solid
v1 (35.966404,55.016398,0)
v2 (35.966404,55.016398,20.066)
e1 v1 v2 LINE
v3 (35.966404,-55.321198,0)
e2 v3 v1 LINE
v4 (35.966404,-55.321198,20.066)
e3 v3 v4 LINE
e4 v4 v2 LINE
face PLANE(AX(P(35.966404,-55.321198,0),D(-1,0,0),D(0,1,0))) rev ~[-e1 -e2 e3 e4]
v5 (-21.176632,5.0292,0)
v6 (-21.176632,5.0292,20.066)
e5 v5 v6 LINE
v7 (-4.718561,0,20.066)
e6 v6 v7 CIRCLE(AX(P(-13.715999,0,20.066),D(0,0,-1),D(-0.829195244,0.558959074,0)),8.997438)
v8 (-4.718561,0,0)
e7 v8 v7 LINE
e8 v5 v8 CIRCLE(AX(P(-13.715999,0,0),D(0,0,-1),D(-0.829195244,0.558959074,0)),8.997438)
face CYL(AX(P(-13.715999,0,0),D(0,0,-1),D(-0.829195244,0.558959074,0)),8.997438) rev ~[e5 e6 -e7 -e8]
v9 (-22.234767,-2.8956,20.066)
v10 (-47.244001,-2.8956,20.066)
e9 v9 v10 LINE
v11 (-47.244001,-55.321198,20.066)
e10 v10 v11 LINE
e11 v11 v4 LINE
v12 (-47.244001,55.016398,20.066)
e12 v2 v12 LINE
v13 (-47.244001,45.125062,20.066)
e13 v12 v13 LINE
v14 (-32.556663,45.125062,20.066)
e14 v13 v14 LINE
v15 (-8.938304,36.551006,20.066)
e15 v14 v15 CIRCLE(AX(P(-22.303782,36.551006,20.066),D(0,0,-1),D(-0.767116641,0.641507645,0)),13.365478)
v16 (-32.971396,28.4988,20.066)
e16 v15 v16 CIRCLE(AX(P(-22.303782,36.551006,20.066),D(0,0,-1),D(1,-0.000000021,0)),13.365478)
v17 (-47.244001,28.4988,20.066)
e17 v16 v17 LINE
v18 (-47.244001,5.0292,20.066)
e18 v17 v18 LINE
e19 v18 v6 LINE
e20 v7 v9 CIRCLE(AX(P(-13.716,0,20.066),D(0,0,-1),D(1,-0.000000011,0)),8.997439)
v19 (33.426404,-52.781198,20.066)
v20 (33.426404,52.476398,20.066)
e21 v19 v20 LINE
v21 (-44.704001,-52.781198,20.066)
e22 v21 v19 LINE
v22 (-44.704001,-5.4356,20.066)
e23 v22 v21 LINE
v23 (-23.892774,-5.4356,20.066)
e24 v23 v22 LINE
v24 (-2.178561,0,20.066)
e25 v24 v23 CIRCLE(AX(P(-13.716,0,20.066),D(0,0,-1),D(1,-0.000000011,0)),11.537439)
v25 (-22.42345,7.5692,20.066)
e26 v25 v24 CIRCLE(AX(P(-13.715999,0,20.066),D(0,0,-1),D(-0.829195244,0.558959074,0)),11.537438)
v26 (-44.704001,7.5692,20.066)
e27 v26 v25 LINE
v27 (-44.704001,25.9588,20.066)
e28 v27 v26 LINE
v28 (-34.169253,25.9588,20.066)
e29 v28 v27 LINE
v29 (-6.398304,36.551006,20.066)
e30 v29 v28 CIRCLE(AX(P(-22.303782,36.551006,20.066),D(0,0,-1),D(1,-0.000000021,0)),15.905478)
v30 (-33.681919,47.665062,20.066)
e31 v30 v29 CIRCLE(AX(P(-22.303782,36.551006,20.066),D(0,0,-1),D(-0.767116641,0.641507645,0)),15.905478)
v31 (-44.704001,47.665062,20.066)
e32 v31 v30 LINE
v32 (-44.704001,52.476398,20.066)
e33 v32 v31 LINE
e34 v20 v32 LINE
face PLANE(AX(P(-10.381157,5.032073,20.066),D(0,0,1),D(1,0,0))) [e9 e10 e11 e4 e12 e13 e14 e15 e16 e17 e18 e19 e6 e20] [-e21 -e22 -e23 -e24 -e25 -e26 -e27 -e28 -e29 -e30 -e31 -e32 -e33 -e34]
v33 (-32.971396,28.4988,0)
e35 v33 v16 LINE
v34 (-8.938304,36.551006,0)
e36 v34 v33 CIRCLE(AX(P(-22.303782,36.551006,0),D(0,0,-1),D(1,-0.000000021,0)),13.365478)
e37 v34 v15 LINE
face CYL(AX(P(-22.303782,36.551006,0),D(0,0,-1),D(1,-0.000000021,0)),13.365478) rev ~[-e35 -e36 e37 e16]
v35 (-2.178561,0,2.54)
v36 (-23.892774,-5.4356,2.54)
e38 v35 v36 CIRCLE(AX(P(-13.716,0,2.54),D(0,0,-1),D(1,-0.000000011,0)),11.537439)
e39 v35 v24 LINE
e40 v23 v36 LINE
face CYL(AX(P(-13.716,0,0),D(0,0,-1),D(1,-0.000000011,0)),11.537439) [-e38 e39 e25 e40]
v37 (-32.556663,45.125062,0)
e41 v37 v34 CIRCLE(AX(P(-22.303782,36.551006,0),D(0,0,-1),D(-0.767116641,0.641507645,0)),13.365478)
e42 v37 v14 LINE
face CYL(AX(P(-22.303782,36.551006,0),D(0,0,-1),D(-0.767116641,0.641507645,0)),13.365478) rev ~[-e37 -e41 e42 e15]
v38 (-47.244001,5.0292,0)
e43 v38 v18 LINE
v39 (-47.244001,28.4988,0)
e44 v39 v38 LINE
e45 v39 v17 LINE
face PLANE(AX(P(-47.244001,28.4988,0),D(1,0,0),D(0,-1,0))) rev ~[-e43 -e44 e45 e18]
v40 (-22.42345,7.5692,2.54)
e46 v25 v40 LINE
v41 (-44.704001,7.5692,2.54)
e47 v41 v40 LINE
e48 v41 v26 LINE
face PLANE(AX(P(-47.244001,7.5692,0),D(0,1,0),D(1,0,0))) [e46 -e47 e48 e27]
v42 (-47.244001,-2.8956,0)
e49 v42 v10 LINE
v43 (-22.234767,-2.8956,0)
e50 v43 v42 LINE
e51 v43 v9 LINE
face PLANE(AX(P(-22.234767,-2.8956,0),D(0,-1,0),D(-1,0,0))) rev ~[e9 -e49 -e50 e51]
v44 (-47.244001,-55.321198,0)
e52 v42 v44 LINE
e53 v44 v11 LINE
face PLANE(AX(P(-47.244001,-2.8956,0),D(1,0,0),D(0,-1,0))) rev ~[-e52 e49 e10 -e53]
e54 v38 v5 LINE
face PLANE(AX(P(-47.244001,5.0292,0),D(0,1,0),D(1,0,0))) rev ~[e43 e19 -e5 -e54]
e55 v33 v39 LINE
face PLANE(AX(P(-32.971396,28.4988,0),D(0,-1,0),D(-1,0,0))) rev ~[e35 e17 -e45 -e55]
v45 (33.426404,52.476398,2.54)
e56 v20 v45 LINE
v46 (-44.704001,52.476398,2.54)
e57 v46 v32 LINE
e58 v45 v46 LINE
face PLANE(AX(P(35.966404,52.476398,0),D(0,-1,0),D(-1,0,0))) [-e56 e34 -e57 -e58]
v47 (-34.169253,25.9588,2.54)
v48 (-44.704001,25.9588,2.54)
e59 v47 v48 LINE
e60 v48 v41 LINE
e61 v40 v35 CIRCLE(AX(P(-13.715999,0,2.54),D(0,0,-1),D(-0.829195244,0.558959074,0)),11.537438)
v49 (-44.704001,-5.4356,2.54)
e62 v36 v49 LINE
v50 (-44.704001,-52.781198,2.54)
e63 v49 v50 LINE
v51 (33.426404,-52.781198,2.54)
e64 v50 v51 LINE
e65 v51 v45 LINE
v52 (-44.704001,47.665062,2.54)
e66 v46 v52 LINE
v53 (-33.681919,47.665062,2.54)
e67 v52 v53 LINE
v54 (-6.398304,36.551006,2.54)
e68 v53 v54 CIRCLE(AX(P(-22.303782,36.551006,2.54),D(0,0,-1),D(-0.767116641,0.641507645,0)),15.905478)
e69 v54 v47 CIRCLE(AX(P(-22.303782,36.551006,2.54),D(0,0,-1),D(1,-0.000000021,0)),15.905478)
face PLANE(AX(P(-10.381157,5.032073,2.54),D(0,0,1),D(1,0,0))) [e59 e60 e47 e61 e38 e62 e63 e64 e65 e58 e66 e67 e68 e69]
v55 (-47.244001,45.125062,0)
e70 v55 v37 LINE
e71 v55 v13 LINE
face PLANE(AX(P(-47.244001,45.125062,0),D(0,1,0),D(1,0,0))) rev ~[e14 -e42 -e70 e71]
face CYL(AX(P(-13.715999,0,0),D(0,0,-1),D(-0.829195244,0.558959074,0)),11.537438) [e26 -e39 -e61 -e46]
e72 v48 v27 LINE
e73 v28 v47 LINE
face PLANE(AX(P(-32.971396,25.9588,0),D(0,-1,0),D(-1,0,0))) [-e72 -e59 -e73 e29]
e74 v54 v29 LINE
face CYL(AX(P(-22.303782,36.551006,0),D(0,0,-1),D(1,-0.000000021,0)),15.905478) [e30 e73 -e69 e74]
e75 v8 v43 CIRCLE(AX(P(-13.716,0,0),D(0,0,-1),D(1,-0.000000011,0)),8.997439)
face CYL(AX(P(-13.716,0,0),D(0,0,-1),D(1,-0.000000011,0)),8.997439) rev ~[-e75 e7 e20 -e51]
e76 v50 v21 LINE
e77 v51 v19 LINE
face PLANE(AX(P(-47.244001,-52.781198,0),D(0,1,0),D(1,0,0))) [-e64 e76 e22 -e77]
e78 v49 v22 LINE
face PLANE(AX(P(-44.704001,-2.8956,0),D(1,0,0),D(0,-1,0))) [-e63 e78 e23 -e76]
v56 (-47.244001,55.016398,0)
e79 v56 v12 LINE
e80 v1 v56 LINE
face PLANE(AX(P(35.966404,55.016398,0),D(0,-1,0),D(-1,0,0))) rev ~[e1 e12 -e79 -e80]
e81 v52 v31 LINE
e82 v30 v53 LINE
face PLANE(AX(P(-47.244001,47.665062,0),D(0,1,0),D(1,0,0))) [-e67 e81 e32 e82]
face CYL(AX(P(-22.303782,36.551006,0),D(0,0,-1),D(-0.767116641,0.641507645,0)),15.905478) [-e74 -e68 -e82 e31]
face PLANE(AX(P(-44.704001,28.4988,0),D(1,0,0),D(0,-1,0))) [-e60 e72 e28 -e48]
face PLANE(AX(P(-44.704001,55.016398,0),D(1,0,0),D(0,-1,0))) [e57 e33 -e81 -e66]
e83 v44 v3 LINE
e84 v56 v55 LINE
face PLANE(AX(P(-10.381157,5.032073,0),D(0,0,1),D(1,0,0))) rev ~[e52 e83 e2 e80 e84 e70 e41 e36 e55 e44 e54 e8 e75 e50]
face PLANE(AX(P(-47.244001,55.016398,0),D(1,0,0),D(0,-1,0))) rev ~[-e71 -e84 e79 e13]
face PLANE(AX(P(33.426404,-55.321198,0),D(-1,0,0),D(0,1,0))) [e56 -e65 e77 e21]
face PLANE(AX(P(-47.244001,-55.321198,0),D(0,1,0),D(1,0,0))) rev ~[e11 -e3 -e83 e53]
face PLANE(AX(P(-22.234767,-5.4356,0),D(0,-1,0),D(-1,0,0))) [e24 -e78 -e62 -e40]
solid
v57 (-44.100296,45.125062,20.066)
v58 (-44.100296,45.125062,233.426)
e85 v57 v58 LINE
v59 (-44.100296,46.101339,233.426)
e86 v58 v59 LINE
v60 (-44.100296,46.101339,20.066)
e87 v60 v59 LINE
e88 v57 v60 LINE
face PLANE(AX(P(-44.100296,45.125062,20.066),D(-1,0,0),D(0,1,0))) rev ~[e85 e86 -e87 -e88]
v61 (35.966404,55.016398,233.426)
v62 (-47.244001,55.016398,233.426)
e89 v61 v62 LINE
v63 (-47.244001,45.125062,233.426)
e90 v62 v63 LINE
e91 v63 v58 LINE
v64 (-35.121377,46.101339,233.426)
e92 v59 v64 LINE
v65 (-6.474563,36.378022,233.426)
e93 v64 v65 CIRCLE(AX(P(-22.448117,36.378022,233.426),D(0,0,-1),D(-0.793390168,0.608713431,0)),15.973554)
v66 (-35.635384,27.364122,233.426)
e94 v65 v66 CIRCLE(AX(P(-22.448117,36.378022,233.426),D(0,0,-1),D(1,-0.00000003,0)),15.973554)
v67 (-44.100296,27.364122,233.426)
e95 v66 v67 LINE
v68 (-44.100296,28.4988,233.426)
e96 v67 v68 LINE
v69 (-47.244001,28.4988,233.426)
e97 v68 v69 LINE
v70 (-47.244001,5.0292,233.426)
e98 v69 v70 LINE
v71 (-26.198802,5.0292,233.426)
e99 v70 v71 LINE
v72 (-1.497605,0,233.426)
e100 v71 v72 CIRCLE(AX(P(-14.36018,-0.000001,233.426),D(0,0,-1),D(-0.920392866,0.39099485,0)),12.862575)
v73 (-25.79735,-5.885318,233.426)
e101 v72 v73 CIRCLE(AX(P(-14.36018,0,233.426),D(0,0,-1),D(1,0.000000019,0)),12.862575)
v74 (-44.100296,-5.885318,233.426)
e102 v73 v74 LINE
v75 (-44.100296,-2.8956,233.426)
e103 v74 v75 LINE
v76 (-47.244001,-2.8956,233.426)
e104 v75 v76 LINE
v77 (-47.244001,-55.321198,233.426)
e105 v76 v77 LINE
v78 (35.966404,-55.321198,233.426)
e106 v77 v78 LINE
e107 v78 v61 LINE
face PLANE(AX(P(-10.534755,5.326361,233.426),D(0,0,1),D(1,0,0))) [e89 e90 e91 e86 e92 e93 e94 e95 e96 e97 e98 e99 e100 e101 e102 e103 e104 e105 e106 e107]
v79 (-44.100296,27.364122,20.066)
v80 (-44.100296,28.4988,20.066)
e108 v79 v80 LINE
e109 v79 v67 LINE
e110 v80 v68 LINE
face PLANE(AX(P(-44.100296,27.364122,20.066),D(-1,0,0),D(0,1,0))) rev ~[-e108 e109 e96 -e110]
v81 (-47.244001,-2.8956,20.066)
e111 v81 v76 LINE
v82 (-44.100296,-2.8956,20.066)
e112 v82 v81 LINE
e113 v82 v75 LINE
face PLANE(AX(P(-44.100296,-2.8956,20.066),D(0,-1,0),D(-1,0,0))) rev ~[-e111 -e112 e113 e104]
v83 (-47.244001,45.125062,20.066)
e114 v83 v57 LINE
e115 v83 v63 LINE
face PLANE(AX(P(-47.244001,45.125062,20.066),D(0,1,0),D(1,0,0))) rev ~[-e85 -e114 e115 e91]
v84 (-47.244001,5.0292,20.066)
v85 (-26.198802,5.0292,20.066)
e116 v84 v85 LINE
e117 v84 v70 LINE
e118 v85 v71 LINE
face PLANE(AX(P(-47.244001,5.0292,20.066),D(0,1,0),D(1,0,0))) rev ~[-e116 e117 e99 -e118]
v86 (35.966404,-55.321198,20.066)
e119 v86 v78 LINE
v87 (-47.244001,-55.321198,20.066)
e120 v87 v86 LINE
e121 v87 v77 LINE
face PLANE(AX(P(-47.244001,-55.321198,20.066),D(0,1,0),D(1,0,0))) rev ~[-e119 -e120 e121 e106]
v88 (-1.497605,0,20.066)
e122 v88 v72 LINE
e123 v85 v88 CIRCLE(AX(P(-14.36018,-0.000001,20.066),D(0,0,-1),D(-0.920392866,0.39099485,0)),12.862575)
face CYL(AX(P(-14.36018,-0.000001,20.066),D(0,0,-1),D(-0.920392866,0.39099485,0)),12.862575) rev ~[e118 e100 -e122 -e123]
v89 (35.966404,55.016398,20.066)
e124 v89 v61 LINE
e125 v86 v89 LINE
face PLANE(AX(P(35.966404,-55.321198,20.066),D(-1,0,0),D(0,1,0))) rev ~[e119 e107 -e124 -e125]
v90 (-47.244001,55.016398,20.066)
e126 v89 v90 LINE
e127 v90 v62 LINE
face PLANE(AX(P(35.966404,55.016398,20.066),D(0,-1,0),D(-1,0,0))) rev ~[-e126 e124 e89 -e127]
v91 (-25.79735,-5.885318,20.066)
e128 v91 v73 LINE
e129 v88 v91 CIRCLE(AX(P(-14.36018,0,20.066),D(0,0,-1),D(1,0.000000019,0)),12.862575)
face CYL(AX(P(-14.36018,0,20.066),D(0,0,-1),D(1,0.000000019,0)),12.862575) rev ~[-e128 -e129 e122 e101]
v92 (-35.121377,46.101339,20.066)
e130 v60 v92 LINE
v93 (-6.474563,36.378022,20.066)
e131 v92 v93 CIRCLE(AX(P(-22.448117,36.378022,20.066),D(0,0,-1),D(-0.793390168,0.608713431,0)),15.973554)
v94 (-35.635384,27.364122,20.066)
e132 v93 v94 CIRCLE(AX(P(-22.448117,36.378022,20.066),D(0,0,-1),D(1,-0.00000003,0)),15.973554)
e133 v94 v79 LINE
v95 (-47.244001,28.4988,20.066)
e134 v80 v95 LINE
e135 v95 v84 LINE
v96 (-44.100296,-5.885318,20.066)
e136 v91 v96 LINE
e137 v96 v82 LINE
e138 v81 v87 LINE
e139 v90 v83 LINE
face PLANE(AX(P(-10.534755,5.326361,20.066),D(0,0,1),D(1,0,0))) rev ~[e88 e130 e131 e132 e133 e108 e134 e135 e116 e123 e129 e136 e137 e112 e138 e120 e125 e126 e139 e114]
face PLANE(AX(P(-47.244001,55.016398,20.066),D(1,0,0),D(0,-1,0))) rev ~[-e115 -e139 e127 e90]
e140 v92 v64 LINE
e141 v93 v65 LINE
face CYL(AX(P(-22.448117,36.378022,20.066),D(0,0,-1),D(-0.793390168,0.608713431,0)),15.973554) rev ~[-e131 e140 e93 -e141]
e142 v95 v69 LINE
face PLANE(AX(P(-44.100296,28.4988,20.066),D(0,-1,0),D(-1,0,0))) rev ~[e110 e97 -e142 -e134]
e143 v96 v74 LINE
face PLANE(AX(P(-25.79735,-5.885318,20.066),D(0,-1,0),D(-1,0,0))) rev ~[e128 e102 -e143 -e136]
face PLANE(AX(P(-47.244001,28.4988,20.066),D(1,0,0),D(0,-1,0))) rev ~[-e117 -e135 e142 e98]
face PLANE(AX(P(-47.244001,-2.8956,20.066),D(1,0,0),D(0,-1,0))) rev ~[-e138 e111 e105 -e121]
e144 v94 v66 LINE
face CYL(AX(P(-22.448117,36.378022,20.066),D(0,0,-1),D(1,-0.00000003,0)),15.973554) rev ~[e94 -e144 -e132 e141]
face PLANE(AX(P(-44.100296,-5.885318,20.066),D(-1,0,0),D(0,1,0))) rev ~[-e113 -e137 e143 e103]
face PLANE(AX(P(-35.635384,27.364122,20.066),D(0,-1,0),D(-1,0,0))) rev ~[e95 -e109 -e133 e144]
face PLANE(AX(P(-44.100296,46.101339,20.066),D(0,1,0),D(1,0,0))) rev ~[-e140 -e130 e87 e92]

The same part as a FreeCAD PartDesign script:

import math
import FreeCAD as App
import Part
import Sketcher
Q = App.Units.Quantity


def faces_at(feature, points):
    """Names of the faces that lie closest to the given points."""
    faces = feature.Shape.Faces
    near = lambda p: min(range(len(faces)), key=lambda i: faces[i].distToShape(Part.Vertex(*p))[0])
    return sorted({f"Face{near(p) + 1}" for p in points})

doc = App.newDocument("Part")
body = doc.addObject("PartDesign::Body", "Body")

sketch1 = body.newObject("Sketcher::SketchObject", "Sketch")
sketch1.AttachmentSupport = (doc.getObject("XY_Plane"), [""])
sketch1.MapMode = "FlatFace"
sketch1.addGeometry([
    Part.LineSegment(App.Vector(36, 55, 0), App.Vector(-47, 55, 0)),
    Part.LineSegment(App.Vector(-47, 55, 0), App.Vector(-47, 45, 0)),
    Part.LineSegment(App.Vector(-47, 45, 0), App.Vector(-33, 45, 0)),
    Part.ArcOfCircle(Part.Circle(App.Vector(-22, 37, 0), App.Vector(0, 0, 1), 13), math.radians(0), math.radians(140)),
    Part.ArcOfCircle(Part.Circle(App.Vector(-22, 37, 0), App.Vector(0, 0, 1), 13), math.radians(-143), math.radians(0)),
    Part.LineSegment(App.Vector(-33, 28, 0), App.Vector(-47, 28, 0)),
    Part.LineSegment(App.Vector(-47, 28, 0), App.Vector(-47, 5, 0)),
    Part.LineSegment(App.Vector(-47, 5, 0), App.Vector(-21, 5, 0)),
    Part.ArcOfCircle(Part.Circle(App.Vector(-14, 0, 0), App.Vector(0, 0, 1), 9), math.radians(0), math.radians(146)),
    Part.ArcOfCircle(Part.Circle(App.Vector(-14, 0, 0), App.Vector(0, 0, 1), 9), math.radians(-161), math.radians(0)),
    Part.LineSegment(App.Vector(-22, -3, 0), App.Vector(-47, -3, 0)),
    Part.LineSegment(App.Vector(-47, -3, 0), App.Vector(-47, -55, 0)),
    Part.LineSegment(App.Vector(-47, -55, 0), App.Vector(36, -55, 0)),
    Part.LineSegment(App.Vector(36, -55, 0), App.Vector(36, 55, 0)),
], False)
sketch1.addConstraint([
    Sketcher.Constraint("Coincident", 0, 2, 1, 1),
    Sketcher.Constraint("Coincident", 1, 2, 2, 1),
    Sketcher.Constraint("Coincident", 2, 2, 3, 2),
    Sketcher.Constraint("Tangent", 3, 1, 4, 2),
    Sketcher.Constraint("Coincident", 4, 1, 5, 1),
    Sketcher.Constraint("Coincident", 5, 2, 6, 1),
    Sketcher.Constraint("Coincident", 6, 2, 7, 1),
    Sketcher.Constraint("Coincident", 7, 2, 8, 2),
    Sketcher.Constraint("Tangent", 8, 1, 9, 2),
    Sketcher.Constraint("Coincident", 9, 1, 10, 1),
    Sketcher.Constraint("Coincident", 10, 2, 11, 1),
    Sketcher.Constraint("Coincident", 11, 2, 12, 1),
    Sketcher.Constraint("Coincident", 12, 2, 13, 1),
    Sketcher.Constraint("Coincident", 13, 2, 0, 1),
    Sketcher.Constraint("Horizontal", 0),
    Sketcher.Constraint("Vertical", 1),
    Sketcher.Constraint("Horizontal", 2),
    Sketcher.Constraint("Horizontal", 5),
    Sketcher.Constraint("Vertical", 6),
    Sketcher.Constraint("Horizontal", 7),
    Sketcher.Constraint("Horizontal", 10),
    Sketcher.Constraint("Vertical", 11),
    Sketcher.Constraint("Horizontal", 12),
    Sketcher.Constraint("Vertical", 13),
    Sketcher.Constraint("Equal", 3, 4),
    Sketcher.Constraint("Equal", 8, 9),
    Sketcher.Constraint("PointOnObject", 8, 3, -1),
    Sketcher.Constraint("PointOnObject", 8, 1, -1),
    Sketcher.Constraint("Horizontal", 4, 3, 3, 1),
    Sketcher.Constraint("Vertical", 1, 2, 5, 2),
    Sketcher.Constraint("Vertical", 6, 2, 10, 2),
    Sketcher.Constraint("Radius", 3, Q("0.5261999 in")),
    Sketcher.Constraint("DistanceX", 0, 2, 0, 1, Q("3.2760002 in")),
    Sketcher.Constraint("DistanceY", 6, 2, 6, 1, Q("0.924 in")),
    Sketcher.Constraint("DistanceY", 11, 2, 11, 1, Q("2.0639999 in")),
    Sketcher.Constraint("DistanceY", 13, 1, 13, 2, Q("4.3439998 in")),
    Sketcher.Constraint("DistanceX", 8, 3, -1, 1, Q("0.54 in")),
    Sketcher.Constraint("DistanceX", 0, 2, -1, 1, Q("1.86 in")),
    Sketcher.Constraint("DistanceY", -1, 1, 0, 2, Q("2.1659999 in")),
    Sketcher.Constraint("DistanceY", -1, 1, 4, 1, Q("1.122 in")),
    Sketcher.Constraint("Radius", 8, Q("8.997438 mm")),
    Sketcher.Constraint("DistanceX", 2, 1, 2, 2, Q("14.687338 mm")),
    Sketcher.Constraint("DistanceX", 5, 2, 5, 1, Q("14.272605 mm")),
    Sketcher.Constraint("DistanceY", 1, 2, 1, 1, Q("9.891336 mm")),
])
pad1 = body.newObject("PartDesign::Pad", "Pad")
pad1.Profile = sketch1
pad1.Length = Q("0.79 in")
doc.recompute()

thickness = body.newObject("PartDesign::Thickness", "Thickness")
thickness.Base = (pad1, faces_at(pad1, [(-22.281, -22.22, 20.066)]))
thickness.Value = Q("0.1 in")
thickness.Reversed = True
thickness.Join = "Arc"
body2 = doc.addObject("PartDesign::Body", "Body001")

sketch2 = body2.newObject("Sketcher::SketchObject", "Sketch001")
sketch2.AttachmentSupport = (doc.getObject("XY_Plane001"), [""])
sketch2.MapMode = "FlatFace"
sketch2.AttachmentOffset = App.Placement(App.Vector(0, 0, 0.79 * 25.4), App.Rotation())
sketch2.addGeometry([
    Part.ArcOfCircle(Part.Circle(App.Vector(-22.4, 36.4, 0), App.Vector(0, 0, 1), 16), math.radians(0), math.radians(143)),
    Part.ArcOfCircle(Part.Circle(App.Vector(-22.4, 36.4, 0), App.Vector(0, 0, 1), 16), math.radians(-146), math.radians(0)),
    Part.LineSegment(App.Vector(-35.6, 27.4, 0), App.Vector(-44.1, 27.4, 0)),
    Part.LineSegment(App.Vector(-44.1, 27.4, 0), App.Vector(-44.1, 28.5, 0)),
    Part.LineSegment(App.Vector(-44.1, 28.5, 0), App.Vector(-47.2, 28.5, 0)),
    Part.LineSegment(App.Vector(-47.2, 28.5, 0), App.Vector(-47.2, 5, 0)),
    Part.LineSegment(App.Vector(-47.2, 5, 0), App.Vector(-26.2, 5, 0)),
    Part.ArcOfCircle(Part.Circle(App.Vector(-14.4, 0, 0), App.Vector(0, 0, 1), 12.9), math.radians(0), math.radians(157)),
    Part.ArcOfCircle(Part.Circle(App.Vector(-14.4, 0, 0), App.Vector(0, 0, 1), 12.9), math.radians(-153), math.radians(0)),
    Part.LineSegment(App.Vector(-25.8, -5.9, 0), App.Vector(-44.1, -5.9, 0)),
    Part.LineSegment(App.Vector(-44.1, -5.9, 0), App.Vector(-44.1, -2.9, 0)),
    Part.LineSegment(App.Vector(-44.1, -2.9, 0), App.Vector(-47.2, -2.9, 0)),
    Part.LineSegment(App.Vector(-47.2, -2.9, 0), App.Vector(-47.2, -55.3, 0)),
    Part.LineSegment(App.Vector(-47.2, -55.3, 0), App.Vector(36, -55.3, 0)),
    Part.LineSegment(App.Vector(36, -55.3, 0), App.Vector(36, 55, 0)),
    Part.LineSegment(App.Vector(36, 55, 0), App.Vector(-47.2, 55, 0)),
    Part.LineSegment(App.Vector(-47.2, 55, 0), App.Vector(-47.2, 45.1, 0)),
    Part.LineSegment(App.Vector(-47.2, 45.1, 0), App.Vector(-44.1, 45.1, 0)),
    Part.LineSegment(App.Vector(-44.1, 45.1, 0), App.Vector(-44.1, 46.1, 0)),
    Part.LineSegment(App.Vector(-44.1, 46.1, 0), App.Vector(-35.1, 46.1, 0)),
], False)
sketch2.addConstraint([
    Sketcher.Constraint("Tangent", 0, 1, 1, 2),
    Sketcher.Constraint("Coincident", 1, 1, 2, 1),
    Sketcher.Constraint("Coincident", 2, 2, 3, 1),
    Sketcher.Constraint("Coincident", 3, 2, 4, 1),
    Sketcher.Constraint("Coincident", 4, 2, 5, 1),
    Sketcher.Constraint("Coincident", 5, 2, 6, 1),
    Sketcher.Constraint("Coincident", 6, 2, 7, 2),
    Sketcher.Constraint("Tangent", 7, 1, 8, 2),
    Sketcher.Constraint("Coincident", 8, 1, 9, 1),
    Sketcher.Constraint("Coincident", 9, 2, 10, 1),
    Sketcher.Constraint("Coincident", 10, 2, 11, 1),
    Sketcher.Constraint("Coincident", 11, 2, 12, 1),
    Sketcher.Constraint("Coincident", 12, 2, 13, 1),
    Sketcher.Constraint("Coincident", 13, 2, 14, 1),
    Sketcher.Constraint("Coincident", 14, 2, 15, 1),
    Sketcher.Constraint("Coincident", 15, 2, 16, 1),
    Sketcher.Constraint("Coincident", 16, 2, 17, 1),
    Sketcher.Constraint("Coincident", 17, 2, 18, 1),
    Sketcher.Constraint("Coincident", 18, 2, 19, 1),
    Sketcher.Constraint("Coincident", 19, 2, 0, 2),
    Sketcher.Constraint("Horizontal", 2),
    Sketcher.Constraint("Vertical", 3),
    Sketcher.Constraint("Horizontal", 4),
    Sketcher.Constraint("Vertical", 5),
    Sketcher.Constraint("Horizontal", 6),
    Sketcher.Constraint("Horizontal", 9),
    Sketcher.Constraint("Vertical", 10),
    Sketcher.Constraint("Horizontal", 11),
    Sketcher.Constraint("Vertical", 12),
    Sketcher.Constraint("Horizontal", 13),
    Sketcher.Constraint("Vertical", 14),
    Sketcher.Constraint("Horizontal", 15),
    Sketcher.Constraint("Vertical", 16),
    Sketcher.Constraint("Horizontal", 17),
    Sketcher.Constraint("Vertical", 18),
    Sketcher.Constraint("Horizontal", 19),
    Sketcher.Constraint("Equal", 0, 1),
    Sketcher.Constraint("Equal", 7, 8),
    Sketcher.Constraint("PointOnObject", 7, 3, -1),
    Sketcher.Constraint("PointOnObject", 7, 1, -1),
    Sketcher.Constraint("Horizontal", 1, 3, 0, 1),
    Sketcher.Constraint("Vertical", 3, 2, 9, 2),
    Sketcher.Constraint("Vertical", 5, 2, 11, 2),
    Sketcher.Constraint("Vertical", 12, 2, 15, 2),
    Sketcher.Constraint("Vertical", 10, 2, 17, 2),
    Sketcher.Constraint("DistanceX", 13, 1, 13, 2, Q("3.2760002 in")),
    Sketcher.Constraint("DistanceY", 5, 2, 5, 1, Q("0.924 in")),
    Sketcher.Constraint("DistanceY", 12, 2, 12, 1, Q("2.0639999 in")),
    Sketcher.Constraint("DistanceY", 14, 1, 14, 2, Q("4.3439998 in")),
    Sketcher.Constraint("DistanceX", 4, 2, -1, 1, Q("1.86 in")),
    Sketcher.Constraint("DistanceY", -1, 1, 3, 2, Q("1.122 in")),
    Sketcher.Constraint("DistanceY", 10, 2, -1, 1, Q("0.114 in")),
    Sketcher.Constraint("DistanceX", 6, 1, 6, 2, Q("21.045199 mm")),
    Sketcher.Constraint("Radius", 0, Q("15.973554 mm")),
    Sketcher.Constraint("Radius", 7, Q("12.862575 mm")),
    Sketcher.Constraint("DistanceX", 2, 2, 2, 1, Q("8.464912 mm")),
    Sketcher.Constraint("DistanceX", 19, 1, 19, 2, Q("8.978919 mm")),
    Sketcher.Constraint("DistanceY", 3, 1, 3, 2, Q("1.134678 mm")),
    Sketcher.Constraint("DistanceY", 1, 1, 1, 3, Q("9.0139 mm")),
    Sketcher.Constraint("DistanceX", 4, 2, 4, 1, Q("3.143705 mm")),
    Sketcher.Constraint("DistanceX", 9, 2, 9, 1, Q("18.302946 mm")),
    Sketcher.Constraint("DistanceY", 16, 2, 16, 1, Q("9.891336 mm")),
])
pad2 = body2.newObject("PartDesign::Pad", "Pad001")
pad2.Profile = sketch2
pad2.Length = Q("8.4 in")

doc.recompute()
